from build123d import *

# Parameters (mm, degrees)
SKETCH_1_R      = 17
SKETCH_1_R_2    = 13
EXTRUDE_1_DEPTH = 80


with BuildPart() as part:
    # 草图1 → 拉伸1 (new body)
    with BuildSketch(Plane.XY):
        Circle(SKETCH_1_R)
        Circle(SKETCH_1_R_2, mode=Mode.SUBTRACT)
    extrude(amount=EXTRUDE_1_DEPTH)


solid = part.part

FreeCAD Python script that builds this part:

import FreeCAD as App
import Part
import Sketcher
from FreeCAD import Vector
Q = App.Units.Quantity

doc = App.newDocument("Part")
params = doc.addObject("Spreadsheet::Sheet", "Params")
for row, (alias, value) in enumerate([
    ("sketch1_diameter", "34 mm"),
    ("sketch1_diameter2", "26 mm"),
    ("pad1_length", "80 mm"),
], start=1):
    params.set(f"A{row}", alias)
    params.set(f"B{row}", "=" + value)
    params.setAlias(f"B{row}", alias)

body = doc.addObject("PartDesign::Body", "Body")

# Sketch on XY plane
sketch1 = body.newObject("Sketcher::SketchObject", "Sketch")
sketch1.AttachmentSupport = (doc.getObject("XY_Plane"), [""])
sketch1.MapMode = "FlatFace"
sketch1.addGeometry([
    Part.Circle(Vector(0, 0, 0), Vector(0, 0, 1), 17),
    Part.Circle(Vector(0, 0, 0), Vector(0, 0, 1), 13),
], False)
sketch1.addConstraint([
    Sketcher.Constraint("Coincident", 0, 3, -1, 1),
    Sketcher.Constraint("Coincident", 1, 3, -1, 1),
    Sketcher.Constraint("Diameter", 0, Q("34 mm")),
    Sketcher.Constraint("Diameter", 1, Q("26 mm")),
])
sketch1.setExpression("Constraints[2]", "Params.sketch1_diameter")
sketch1.setExpression("Constraints[3]", "Params.sketch1_diameter2")
pad1 = body.newObject("PartDesign::Pad", "Pad")
pad1.Profile = sketch1
pad1.setExpression("Length", "Params.pad1_length")

doc.recompute()
